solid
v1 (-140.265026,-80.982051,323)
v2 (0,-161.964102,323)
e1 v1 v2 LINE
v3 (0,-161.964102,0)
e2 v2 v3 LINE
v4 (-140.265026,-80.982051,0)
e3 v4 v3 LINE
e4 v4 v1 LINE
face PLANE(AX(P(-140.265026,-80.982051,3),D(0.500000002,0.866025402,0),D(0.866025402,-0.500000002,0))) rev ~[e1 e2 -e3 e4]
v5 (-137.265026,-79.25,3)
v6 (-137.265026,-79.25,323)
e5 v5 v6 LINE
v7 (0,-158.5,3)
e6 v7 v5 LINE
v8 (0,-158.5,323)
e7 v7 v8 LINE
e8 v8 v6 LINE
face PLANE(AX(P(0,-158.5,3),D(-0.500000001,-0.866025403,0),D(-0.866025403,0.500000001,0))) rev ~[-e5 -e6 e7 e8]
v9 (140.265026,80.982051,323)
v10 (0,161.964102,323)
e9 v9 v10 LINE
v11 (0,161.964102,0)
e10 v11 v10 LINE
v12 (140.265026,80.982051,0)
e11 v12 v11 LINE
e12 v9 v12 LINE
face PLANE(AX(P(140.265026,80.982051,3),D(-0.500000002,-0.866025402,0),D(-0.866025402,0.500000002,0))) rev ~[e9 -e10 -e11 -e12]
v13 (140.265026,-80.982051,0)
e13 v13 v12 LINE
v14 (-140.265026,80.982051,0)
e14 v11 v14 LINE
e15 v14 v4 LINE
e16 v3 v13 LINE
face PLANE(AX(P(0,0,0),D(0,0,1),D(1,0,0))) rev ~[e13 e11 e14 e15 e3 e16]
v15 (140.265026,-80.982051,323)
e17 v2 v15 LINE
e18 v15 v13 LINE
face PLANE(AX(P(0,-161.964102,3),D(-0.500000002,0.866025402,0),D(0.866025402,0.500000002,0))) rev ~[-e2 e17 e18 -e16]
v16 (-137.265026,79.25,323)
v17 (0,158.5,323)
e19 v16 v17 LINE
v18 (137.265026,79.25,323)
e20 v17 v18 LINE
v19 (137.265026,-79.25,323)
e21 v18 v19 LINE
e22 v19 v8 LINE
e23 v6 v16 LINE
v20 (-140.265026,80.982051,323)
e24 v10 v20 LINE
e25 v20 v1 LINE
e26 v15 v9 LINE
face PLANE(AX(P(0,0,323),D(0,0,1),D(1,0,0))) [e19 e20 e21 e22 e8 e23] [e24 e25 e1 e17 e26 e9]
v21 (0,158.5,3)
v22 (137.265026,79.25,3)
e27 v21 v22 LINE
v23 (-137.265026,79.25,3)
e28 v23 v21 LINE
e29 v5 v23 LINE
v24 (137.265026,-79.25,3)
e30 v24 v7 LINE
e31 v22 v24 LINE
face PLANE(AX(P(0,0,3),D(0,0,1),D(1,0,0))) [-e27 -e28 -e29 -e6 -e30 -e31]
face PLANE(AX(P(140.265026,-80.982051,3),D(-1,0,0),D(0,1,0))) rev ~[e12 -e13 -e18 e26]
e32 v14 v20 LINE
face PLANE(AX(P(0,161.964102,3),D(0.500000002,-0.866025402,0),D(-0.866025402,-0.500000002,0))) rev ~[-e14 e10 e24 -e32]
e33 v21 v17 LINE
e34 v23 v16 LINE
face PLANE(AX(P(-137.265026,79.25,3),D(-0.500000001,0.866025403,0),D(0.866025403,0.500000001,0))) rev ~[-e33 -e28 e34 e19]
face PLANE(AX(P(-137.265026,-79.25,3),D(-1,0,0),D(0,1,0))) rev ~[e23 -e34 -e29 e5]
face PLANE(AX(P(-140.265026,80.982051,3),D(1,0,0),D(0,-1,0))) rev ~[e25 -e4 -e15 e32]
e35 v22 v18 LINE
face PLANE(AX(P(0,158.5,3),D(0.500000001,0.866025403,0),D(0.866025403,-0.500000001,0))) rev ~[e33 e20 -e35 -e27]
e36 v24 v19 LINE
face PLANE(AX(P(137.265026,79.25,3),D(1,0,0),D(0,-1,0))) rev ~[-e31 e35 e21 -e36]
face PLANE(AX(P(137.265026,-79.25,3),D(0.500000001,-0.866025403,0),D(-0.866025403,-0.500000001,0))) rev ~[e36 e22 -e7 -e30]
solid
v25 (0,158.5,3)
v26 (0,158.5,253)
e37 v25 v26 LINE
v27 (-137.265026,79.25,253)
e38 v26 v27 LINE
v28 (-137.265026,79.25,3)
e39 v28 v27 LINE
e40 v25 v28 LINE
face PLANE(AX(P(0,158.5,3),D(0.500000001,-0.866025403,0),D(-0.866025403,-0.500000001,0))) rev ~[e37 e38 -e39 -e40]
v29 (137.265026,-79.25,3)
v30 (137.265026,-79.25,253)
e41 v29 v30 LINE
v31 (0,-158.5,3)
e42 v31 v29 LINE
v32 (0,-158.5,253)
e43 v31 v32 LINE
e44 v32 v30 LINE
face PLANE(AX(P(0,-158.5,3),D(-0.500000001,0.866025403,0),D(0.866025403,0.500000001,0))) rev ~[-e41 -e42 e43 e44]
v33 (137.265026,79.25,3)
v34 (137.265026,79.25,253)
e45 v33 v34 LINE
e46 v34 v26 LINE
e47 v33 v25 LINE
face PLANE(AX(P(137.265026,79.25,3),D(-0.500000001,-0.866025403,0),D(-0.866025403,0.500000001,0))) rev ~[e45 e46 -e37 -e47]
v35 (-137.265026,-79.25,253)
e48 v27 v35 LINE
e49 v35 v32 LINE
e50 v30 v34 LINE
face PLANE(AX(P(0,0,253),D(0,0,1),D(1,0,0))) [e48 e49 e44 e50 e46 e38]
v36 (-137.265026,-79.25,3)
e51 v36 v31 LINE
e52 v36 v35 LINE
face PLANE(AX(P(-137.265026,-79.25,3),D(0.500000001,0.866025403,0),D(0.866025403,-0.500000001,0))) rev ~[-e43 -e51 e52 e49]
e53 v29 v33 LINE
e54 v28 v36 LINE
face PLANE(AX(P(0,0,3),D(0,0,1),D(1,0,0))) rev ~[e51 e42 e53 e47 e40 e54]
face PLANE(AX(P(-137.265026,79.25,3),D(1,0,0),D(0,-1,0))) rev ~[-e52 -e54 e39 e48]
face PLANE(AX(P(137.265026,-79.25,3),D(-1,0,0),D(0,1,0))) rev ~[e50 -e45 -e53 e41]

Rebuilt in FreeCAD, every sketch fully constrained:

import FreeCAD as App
import Part
import Sketcher
from FreeCAD import Vector
Q = App.Units.Quantity

doc = App.newDocument("Part")
body = doc.addObject("PartDesign::Body", "Body")

# Sketch on XY plane
sketch1 = body.newObject("Sketcher::SketchObject", "Sketch")
sketch1.AttachmentSupport = (doc.getObject("XY_Plane"), [""])
sketch1.MapMode = "FlatFace"
sketch1.addGeometry([
    Part.LineSegment(Vector(140, 81, 0), Vector(0, 162, 0)),  # 0
    Part.LineSegment(Vector(0, 162, 0), Vector(-140, 81, 0)),  # 1
    Part.LineSegment(Vector(-140, 81, 0), Vector(-140, -81, 0)),  # 2
    Part.LineSegment(Vector(-140, -81, 0), Vector(0, -162, 0)),  # 3
    Part.LineSegment(Vector(0, -162, 0), Vector(140, -81, 0)),  # 4
    Part.LineSegment(Vector(140, -81, 0), Vector(140, 81, 0)),  # 5
], False)
sketch1.addConstraint([
    Sketcher.Constraint("Coincident", 0, 2, 1, 1),
    Sketcher.Constraint("Coincident", 1, 2, 2, 1),
    Sketcher.Constraint("Coincident", 2, 2, 3, 1),
    Sketcher.Constraint("Coincident", 3, 2, 4, 1),
    Sketcher.Constraint("Coincident", 4, 2, 5, 1),
    Sketcher.Constraint("Coincident", 5, 2, 0, 1),
    Sketcher.Constraint("Vertical", 2),
    Sketcher.Constraint("Vertical", 5),
    Sketcher.Constraint("Symmetric", 0, 2, 3, 2, -1, 1),
    Sketcher.Constraint("Symmetric", 1, 2, 4, 2, -1, 1),
    Sketcher.Constraint("PointOnObject", 0, 2, -2),
    Sketcher.Constraint("Parallel", 0, 3),
    Sketcher.Constraint("Horizontal", 2, 2, 4, 2),
    Sketcher.Constraint("Angle", 0, Q("150 deg")),
    Sketcher.Constraint("DistanceY", 2, 2, 2, 1, 161.964102),
    Sketcher.Constraint("Distance", 0, 161.964101),
])
pad1 = body.newObject("PartDesign::Pad", "Pad")
pad1.Profile = sketch1
pad1.Length = 3

# Sketch on XY plane
sketch2 = body.newObject("Sketcher::SketchObject", "Sketch001")
sketch2.AttachmentSupport = (doc.getObject("XY_Plane"), [""])
sketch2.MapMode = "FlatFace"
sketch2.AttachmentOffset = App.Placement(Vector(0, 0, 3), App.Rotation())
sketch2.addGeometry([
    Part.LineSegment(Vector(140, 81, 0), Vector(0, 162, 0)),  # 0
    Part.LineSegment(Vector(0, 162, 0), Vector(-140, 81, 0)),  # 1
    Part.LineSegment(Vector(-140, 81, 0), Vector(-140, -81, 0)),  # 2
    Part.LineSegment(Vector(-140, -81, 0), Vector(0, -162, 0)),  # 3
    Part.LineSegment(Vector(0, -162, 0), Vector(140, -81, 0)),  # 4
    Part.LineSegment(Vector(140, -81, 0), Vector(140, 81, 0)),  # 5
    Part.LineSegment(Vector(-137, -79, 0), Vector(-137, 79, 0)),  # 6
    Part.LineSegment(Vector(-137, 79, 0), Vector(0, 158, 0)),  # 7
    Part.LineSegment(Vector(0, 158, 0), Vector(137, 79, 0)),  # 8
    Part.LineSegment(Vector(137, 79, 0), Vector(137, -79, 0)),  # 9
    Part.LineSegment(Vector(137, -79, 0), Vector(0, -158, 0)),  # 10
    Part.LineSegment(Vector(0, -158, 0), Vector(-137, -79, 0)),  # 11
], False)
sketch2.addConstraint([
    Sketcher.Constraint("Coincident", 0, 2, 1, 1),
    Sketcher.Constraint("Coincident", 1, 2, 2, 1),
    Sketcher.Constraint("Coincident", 2, 2, 3, 1),
    Sketcher.Constraint("Coincident", 3, 2, 4, 1),
    Sketcher.Constraint("Coincident", 4, 2, 5, 1),
    Sketcher.Constraint("Coincident", 5, 2, 0, 1),
    Sketcher.Constraint("Coincident", 6, 2, 7, 1),
    Sketcher.Constraint("Coincident", 7, 2, 8, 1),
    Sketcher.Constraint("Coincident", 8, 2, 9, 1),
    Sketcher.Constraint("Coincident", 9, 2, 10, 1),
    Sketcher.Constraint("Coincident", 10, 2, 11, 1),
    Sketcher.Constraint("Coincident", 11, 2, 6, 1),
    Sketcher.Constraint("Vertical", 2),
    Sketcher.Constraint("Vertical", 5),
    Sketcher.Constraint("Vertical", 6),
    Sketcher.Constraint("Vertical", 9),
    Sketcher.Constraint("Symmetric", 0, 2, 3, 2, -1, 1),
    Sketcher.Constraint("Symmetric", 1, 2, 4, 2, -1, 1),
    Sketcher.Constraint("Symmetric", 6, 2, 9, 2, -1, 1),
    Sketcher.Constraint("Symmetric", 7, 2, 10, 2, -1, 1),
    Sketcher.Constraint("PointOnObject", 0, 2, -2),
    Sketcher.Constraint("PointOnObject", 7, 2, -2),
    Sketcher.Constraint("Parallel", 0, 3),
    Sketcher.Constraint("Parallel", 4, 7),
    Sketcher.Constraint("Parallel", 3, 8),
    Sketcher.Constraint("Parallel", 8, 11),
    Sketcher.Constraint("Horizontal", 2, 2, 4, 2),
    Sketcher.Constraint("Angle", 0, Q("150 deg")),
    Sketcher.Constraint("DistanceY", 6, 1, 6, 2, 158.5),
    Sketcher.Constraint("DistanceX", 1, 2, 6, 2, 3.0),
    Sketcher.Constraint("Distance", 7, 158.5),
    Sketcher.Constraint("DistanceY", 2, 2, 2, 1, 161.964102),
])
pad2 = body.newObject("PartDesign::Pad", "Pad001")
pad2.Profile = sketch2
pad2.Length = 320
body2 = doc.addObject("PartDesign::Body", "Body001")

# Sketch on XY plane
sketch3 = body2.newObject("Sketcher::SketchObject", "Sketch002")
sketch3.AttachmentSupport = (doc.getObject("XY_Plane001"), [""])
sketch3.MapMode = "FlatFace"
sketch3.AttachmentOffset = App.Placement(Vector(0, 0, 3), App.Rotation())
sketch3.addGeometry([
    Part.LineSegment(Vector(137, 79, 0), Vector(0, 158, 0)),  # 0
    Part.LineSegment(Vector(0, 158, 0), Vector(-137, 79, 0)),  # 1
    Part.LineSegment(Vector(-137, 79, 0), Vector(-137, -79, 0)),  # 2
    Part.LineSegment(Vector(-137, -79, 0), Vector(0, -158, 0)),  # 3
    Part.LineSegment(Vector(0, -158, 0), Vector(137, -79, 0)),  # 4
    Part.LineSegment(Vector(137, -79, 0), Vector(137, 79, 0)),  # 5
], False)
sketch3.addConstraint([
    Sketcher.Constraint("Coincident", 0, 2, 1, 1),
    Sketcher.Constraint("Coincident", 1, 2, 2, 1),
    Sketcher.Constraint("Coincident", 2, 2, 3, 1),
    Sketcher.Constraint("Coincident", 3, 2, 4, 1),
    Sketcher.Constraint("Coincident", 4, 2, 5, 1),
    Sketcher.Constraint("Coincident", 5, 2, 0, 1),
    Sketcher.Constraint("Vertical", 2),
    Sketcher.Constraint("Vertical", 5),
    Sketcher.Constraint("Symmetric", 0, 2, 3, 2, -1, 1),
    Sketcher.Constraint("Symmetric", 1, 2, 4, 2, -1, 1),
    Sketcher.Constraint("PointOnObject", 0, 2, -2),
    Sketcher.Constraint("Parallel", 0, 3),
    Sketcher.Constraint("Horizontal", 2, 2, 4, 2),
    Sketcher.Constraint("Angle", 0, Q("150 deg")),
    Sketcher.Constraint("DistanceY", 2, 2, 2, 1, 158.5),
    Sketcher.Constraint("DistanceY", 3, 2, 0, 2, 317.0),
])
pad3 = body2.newObject("PartDesign::Pad", "Pad002")
pad3.Profile = sketch3
pad3.Length = 250

doc.recompute()
